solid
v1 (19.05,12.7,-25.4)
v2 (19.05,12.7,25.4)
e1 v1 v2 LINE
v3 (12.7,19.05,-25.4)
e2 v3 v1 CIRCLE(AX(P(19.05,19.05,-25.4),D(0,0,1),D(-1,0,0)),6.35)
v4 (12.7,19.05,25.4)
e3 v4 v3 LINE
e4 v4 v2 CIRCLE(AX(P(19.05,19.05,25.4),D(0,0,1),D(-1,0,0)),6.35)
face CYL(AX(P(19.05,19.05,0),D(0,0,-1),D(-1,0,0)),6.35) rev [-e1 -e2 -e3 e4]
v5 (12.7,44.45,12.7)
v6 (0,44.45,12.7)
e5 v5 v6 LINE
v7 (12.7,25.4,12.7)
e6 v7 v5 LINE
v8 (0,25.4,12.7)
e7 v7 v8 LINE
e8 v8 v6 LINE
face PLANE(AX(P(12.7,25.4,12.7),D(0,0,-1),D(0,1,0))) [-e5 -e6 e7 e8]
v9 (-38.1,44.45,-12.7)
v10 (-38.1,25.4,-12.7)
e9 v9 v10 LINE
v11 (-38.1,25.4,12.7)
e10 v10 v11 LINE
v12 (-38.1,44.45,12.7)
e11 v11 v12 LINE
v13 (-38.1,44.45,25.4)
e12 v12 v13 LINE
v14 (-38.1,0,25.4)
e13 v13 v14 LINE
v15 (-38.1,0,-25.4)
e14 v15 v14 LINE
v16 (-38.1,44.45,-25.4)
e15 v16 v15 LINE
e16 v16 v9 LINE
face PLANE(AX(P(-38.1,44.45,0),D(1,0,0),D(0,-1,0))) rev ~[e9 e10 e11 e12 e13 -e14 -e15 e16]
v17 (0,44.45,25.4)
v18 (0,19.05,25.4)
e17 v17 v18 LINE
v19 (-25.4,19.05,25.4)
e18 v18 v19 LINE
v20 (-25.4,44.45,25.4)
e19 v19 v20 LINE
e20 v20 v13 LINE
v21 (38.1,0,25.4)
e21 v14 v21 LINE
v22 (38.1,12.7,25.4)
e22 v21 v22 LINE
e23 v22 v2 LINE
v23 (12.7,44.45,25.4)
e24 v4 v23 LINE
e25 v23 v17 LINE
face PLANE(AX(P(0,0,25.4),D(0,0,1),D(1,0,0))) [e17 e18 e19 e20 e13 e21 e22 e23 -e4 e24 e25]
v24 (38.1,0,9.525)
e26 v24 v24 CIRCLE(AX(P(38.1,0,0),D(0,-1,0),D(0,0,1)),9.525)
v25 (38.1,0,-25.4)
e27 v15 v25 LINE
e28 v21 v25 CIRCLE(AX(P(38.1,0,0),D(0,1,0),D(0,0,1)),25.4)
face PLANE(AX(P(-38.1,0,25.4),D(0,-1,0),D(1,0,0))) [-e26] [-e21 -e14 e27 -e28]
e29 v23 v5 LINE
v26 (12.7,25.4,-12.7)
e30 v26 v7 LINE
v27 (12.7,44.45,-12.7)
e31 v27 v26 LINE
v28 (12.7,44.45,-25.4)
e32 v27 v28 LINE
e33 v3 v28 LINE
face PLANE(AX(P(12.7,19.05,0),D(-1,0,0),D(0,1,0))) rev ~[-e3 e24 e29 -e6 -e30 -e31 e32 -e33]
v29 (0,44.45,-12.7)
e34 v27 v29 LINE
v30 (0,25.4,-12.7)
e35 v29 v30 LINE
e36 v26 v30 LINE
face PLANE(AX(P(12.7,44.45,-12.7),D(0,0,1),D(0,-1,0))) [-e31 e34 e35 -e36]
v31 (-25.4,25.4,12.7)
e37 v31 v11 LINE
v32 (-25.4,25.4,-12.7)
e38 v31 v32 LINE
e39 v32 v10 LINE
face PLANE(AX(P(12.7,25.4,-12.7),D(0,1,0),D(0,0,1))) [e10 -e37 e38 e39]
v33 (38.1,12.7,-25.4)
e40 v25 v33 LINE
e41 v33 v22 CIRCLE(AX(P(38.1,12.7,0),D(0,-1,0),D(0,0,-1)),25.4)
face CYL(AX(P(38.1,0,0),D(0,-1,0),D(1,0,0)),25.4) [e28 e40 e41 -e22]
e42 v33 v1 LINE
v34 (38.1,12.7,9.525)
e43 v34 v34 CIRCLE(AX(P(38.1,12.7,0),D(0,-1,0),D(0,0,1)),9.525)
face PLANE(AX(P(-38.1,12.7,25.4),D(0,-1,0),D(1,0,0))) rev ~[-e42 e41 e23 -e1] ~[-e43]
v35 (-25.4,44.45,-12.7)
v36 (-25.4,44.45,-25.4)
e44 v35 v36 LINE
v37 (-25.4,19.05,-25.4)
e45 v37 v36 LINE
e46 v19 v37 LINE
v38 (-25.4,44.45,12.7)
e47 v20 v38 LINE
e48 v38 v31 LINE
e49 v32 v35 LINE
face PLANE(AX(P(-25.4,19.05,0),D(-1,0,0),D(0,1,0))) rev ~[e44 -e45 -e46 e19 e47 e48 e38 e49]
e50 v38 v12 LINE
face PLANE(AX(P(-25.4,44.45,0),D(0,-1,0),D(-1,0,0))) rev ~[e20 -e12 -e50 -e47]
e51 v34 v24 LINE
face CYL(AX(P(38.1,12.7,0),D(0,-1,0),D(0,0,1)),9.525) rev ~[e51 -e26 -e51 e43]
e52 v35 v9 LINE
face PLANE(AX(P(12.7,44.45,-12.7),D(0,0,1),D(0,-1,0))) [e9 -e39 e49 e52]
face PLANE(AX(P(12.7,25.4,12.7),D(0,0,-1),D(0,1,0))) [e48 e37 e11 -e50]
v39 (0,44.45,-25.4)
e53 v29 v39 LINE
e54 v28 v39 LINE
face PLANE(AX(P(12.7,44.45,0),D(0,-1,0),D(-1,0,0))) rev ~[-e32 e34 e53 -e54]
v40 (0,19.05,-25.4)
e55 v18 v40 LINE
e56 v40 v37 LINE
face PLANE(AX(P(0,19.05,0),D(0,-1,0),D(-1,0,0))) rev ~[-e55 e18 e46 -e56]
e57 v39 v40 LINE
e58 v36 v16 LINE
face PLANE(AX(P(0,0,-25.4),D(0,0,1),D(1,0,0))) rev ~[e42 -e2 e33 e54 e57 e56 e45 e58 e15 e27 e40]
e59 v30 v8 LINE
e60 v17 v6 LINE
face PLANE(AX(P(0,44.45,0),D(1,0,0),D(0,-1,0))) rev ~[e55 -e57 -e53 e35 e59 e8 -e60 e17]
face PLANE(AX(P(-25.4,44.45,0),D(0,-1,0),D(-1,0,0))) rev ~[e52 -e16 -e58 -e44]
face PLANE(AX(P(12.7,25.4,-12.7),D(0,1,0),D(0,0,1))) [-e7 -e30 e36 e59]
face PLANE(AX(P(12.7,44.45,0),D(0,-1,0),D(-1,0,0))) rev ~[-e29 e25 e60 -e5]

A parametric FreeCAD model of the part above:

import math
import FreeCAD as App
import Part
import Sketcher
Q = App.Units.Quantity

doc = App.newDocument("Part")
body = doc.addObject("PartDesign::Body", "Body")

sketch1 = body.newObject("Sketcher::SketchObject", "Sketch")
sketch1.AttachmentSupport = (doc.getObject("XY_Plane"), [""])
sketch1.MapMode = "FlatFace"
sketch1.addGeometry(Part.LineSegment(App.Vector(-25, 44, 0), App.Vector(-38, 44, 0)), False)
sketch1.addGeometry(Part.LineSegment(App.Vector(-38, 44, 0), App.Vector(-38, 0, 0)), False)
sketch1.addGeometry(Part.LineSegment(App.Vector(-38, 0, 0), App.Vector(38, 0, 0)), False)
sketch1.addGeometry(Part.LineSegment(App.Vector(38, 0, 0), App.Vector(38, 13, 0)), False)
sketch1.addGeometry(Part.LineSegment(App.Vector(38, 13, 0), App.Vector(19, 13, 0)), False)
sketch1.addGeometry(Part.ArcOfCircle(Part.Circle(App.Vector(19, 19, 0), App.Vector(0, 0, 1), 6), math.radians(180), math.radians(270)), False)
sketch1.addGeometry(Part.LineSegment(App.Vector(13, 19, 0), App.Vector(13, 44, 0)), False)
sketch1.addGeometry(Part.LineSegment(App.Vector(13, 44, 0), App.Vector(0, 44, 0)), False)
sketch1.addGeometry(Part.LineSegment(App.Vector(0, 44, 0), App.Vector(0, 19, 0)), False)
sketch1.addGeometry(Part.LineSegment(App.Vector(0, 19, 0), App.Vector(-25, 19, 0)), False)
sketch1.addGeometry(Part.LineSegment(App.Vector(-25, 19, 0), App.Vector(-25, 44, 0)), False)
sketch1.addConstraint(Sketcher.Constraint("Coincident", 0, 2, 1, 1))
sketch1.addConstraint(Sketcher.Constraint("Coincident", 1, 2, 2, 1))
sketch1.addConstraint(Sketcher.Constraint("Coincident", 2, 2, 3, 1))
sketch1.addConstraint(Sketcher.Constraint("Coincident", 3, 2, 4, 1))
sketch1.addConstraint(Sketcher.Constraint("Tangent", 4, 2, 5, 2))
sketch1.addConstraint(Sketcher.Constraint("Tangent", 5, 1, 6, 1))
sketch1.addConstraint(Sketcher.Constraint("Coincident", 6, 2, 7, 1))
sketch1.addConstraint(Sketcher.Constraint("Coincident", 7, 2, 8, 1))
sketch1.addConstraint(Sketcher.Constraint("Coincident", 8, 2, 9, 1))
sketch1.addConstraint(Sketcher.Constraint("Coincident", 9, 2, 10, 1))
sketch1.addConstraint(Sketcher.Constraint("Coincident", 10, 2, 0, 1))
sketch1.addConstraint(Sketcher.Constraint("Horizontal", 0))
sketch1.addConstraint(Sketcher.Constraint("Vertical", 1))
sketch1.addConstraint(Sketcher.Constraint("Horizontal", 2))
sketch1.addConstraint(Sketcher.Constraint("Vertical", 3))
sketch1.addConstraint(Sketcher.Constraint("Horizontal", 4))
sketch1.addConstraint(Sketcher.Constraint("Vertical", 6))
sketch1.addConstraint(Sketcher.Constraint("Horizontal", 7))
sketch1.addConstraint(Sketcher.Constraint("Vertical", 8))
sketch1.addConstraint(Sketcher.Constraint("Horizontal", 9))
sketch1.addConstraint(Sketcher.Constraint("Vertical", 10))
sketch1.addConstraint(Sketcher.Constraint("Symmetric", 1, 2, 2, 2, -1, 1))
sketch1.addConstraint(Sketcher.Constraint("PointOnObject", 7, 2, -2))
sketch1.addConstraint(Sketcher.Constraint("Horizontal", 0, 2, 6, 2))
sketch1.addConstraint(Sketcher.Constraint("Horizontal", 5, 1, 8, 2))
sketch1.addConstraint(Sketcher.Constraint("Equal", 0, 7))
sketch1.addConstraint(Sketcher.Constraint("Equal", 7, 3))
sketch1.addConstraint(Sketcher.Constraint("Equal", 9, 6))
sketch1.addConstraint(Sketcher.Constraint("DistanceX", 2, 1, 2, 2, Q("3 in")))
sketch1.addConstraint(Sketcher.Constraint("Radius", 5, Q("0.25 in")))
sketch1.addConstraint(Sketcher.Constraint("DistanceX", 0, 2, 0, 1, Q("0.5 in")))
pad1 = body.newObject("PartDesign::Pad", "Pad")
pad1.Profile = sketch1
pad1.Length = Q("2 in")
pad1.Midplane = True

sketch2 = body.newObject("Sketcher::SketchObject", "Sketch001")
sketch2.AttachmentSupport = (doc.getObject("XZ_Plane"), [""])
sketch2.MapMode = "FlatFace"
sketch2.addGeometry(Part.Circle(App.Vector(38, 0, 0), App.Vector(0, 0, 1), 25), False)
sketch2.addConstraint(Sketcher.Constraint("PointOnObject", 0, 3, -1))
sketch2.addConstraint(Sketcher.Constraint("Diameter", 0, Q("2 in")))
sketch2.addConstraint(Sketcher.Constraint("DistanceX", -1, 1, 0, 3, Q("1.5 in")))
pad2 = body.newObject("PartDesign::Pad", "Pad001")
pad2.Profile = sketch2
pad2.Length = Q("0.5 in")
pad2.Reversed = True

sketch3 = body.newObject("Sketcher::SketchObject", "Sketch002")
sketch3.AttachmentSupport = (doc.getObject("XZ_Plane"), [""])
sketch3.MapMode = "FlatFace"
sketch3.AttachmentOffset = App.Placement(App.Vector(0, 0, -0.5 * 25.4), App.Rotation())
sketch3.addGeometry(Part.Circle(App.Vector(38, 0, 0), App.Vector(0, 0, 1), 10), False)
sketch3.addConstraint(Sketcher.Constraint("PointOnObject", 0, 3, -1))
sketch3.addConstraint(Sketcher.Constraint("Diameter", 0, Q("0.75 in")))
sketch3.addConstraint(Sketcher.Constraint("DistanceX", -1, 1, 0, 3, Q("1.5 in")))
doc.recompute()
hole = body.newObject("PartDesign::Hole", "Hole")
hole.Profile = sketch3
hole.ThreadType = "None"
hole.Diameter = Q("0.75 in")
hole.DepthType = "ThroughAll"
hole.Reversed = True

sketch4 = body.newObject("Sketcher::SketchObject", "Sketch003")
sketch4.AttachmentSupport = (doc.getObject("YZ_Plane"), [""])
sketch4.MapMode = "FlatFace"
sketch4.AttachmentOffset = App.Placement(App.Vector(0, 0, 0.5 * 25.4), App.Rotation())
sketch4.addGeometry(Part.LineSegment(App.Vector(44, -13, 0), App.Vector(44, 13, 0)), False)
sketch4.addGeometry(Part.LineSegment(App.Vector(44, 13, 0), App.Vector(25, 13, 0)), False)
sketch4.addGeometry(Part.LineSegment(App.Vector(25, 13, 0), App.Vector(25, -13, 0)), False)
sketch4.addGeometry(Part.LineSegment(App.Vector(25, -13, 0), App.Vector(44, -13, 0)), False)
sketch4.addConstraint(Sketcher.Constraint("Coincident", 0, 2, 1, 1))
sketch4.addConstraint(Sketcher.Constraint("Coincident", 1, 2, 2, 1))
sketch4.addConstraint(Sketcher.Constraint("Coincident", 2, 2, 3, 1))
sketch4.addConstraint(Sketcher.Constraint("Coincident", 3, 2, 0, 1))
sketch4.addConstraint(Sketcher.Constraint("Vertical", 0))
sketch4.addConstraint(Sketcher.Constraint("Horizontal", 1))
sketch4.addConstraint(Sketcher.Constraint("Vertical", 2))
sketch4.addConstraint(Sketcher.Constraint("Horizontal", 3))
sketch4.addConstraint(Sketcher.Constraint("DistanceY", 0, 1, 0, 2, Q("1 in")))
sketch4.addConstraint(Sketcher.Constraint("DistanceX", -1, 1, 1, 2, Q("1 in")))
sketch4.addConstraint(Sketcher.Constraint("DistanceX", 1, 2, 1, 1, Q("0.75 in")))
sketch4.addConstraint(Sketcher.Constraint("DistanceY", -1, 1, 0, 2, Q("0.5 in")))
pocket1 = body.newObject("PartDesign::Pocket", "Pocket")
pocket1.Profile = sketch4
pocket1.Type = "ThroughAll"

doc.recompute()
